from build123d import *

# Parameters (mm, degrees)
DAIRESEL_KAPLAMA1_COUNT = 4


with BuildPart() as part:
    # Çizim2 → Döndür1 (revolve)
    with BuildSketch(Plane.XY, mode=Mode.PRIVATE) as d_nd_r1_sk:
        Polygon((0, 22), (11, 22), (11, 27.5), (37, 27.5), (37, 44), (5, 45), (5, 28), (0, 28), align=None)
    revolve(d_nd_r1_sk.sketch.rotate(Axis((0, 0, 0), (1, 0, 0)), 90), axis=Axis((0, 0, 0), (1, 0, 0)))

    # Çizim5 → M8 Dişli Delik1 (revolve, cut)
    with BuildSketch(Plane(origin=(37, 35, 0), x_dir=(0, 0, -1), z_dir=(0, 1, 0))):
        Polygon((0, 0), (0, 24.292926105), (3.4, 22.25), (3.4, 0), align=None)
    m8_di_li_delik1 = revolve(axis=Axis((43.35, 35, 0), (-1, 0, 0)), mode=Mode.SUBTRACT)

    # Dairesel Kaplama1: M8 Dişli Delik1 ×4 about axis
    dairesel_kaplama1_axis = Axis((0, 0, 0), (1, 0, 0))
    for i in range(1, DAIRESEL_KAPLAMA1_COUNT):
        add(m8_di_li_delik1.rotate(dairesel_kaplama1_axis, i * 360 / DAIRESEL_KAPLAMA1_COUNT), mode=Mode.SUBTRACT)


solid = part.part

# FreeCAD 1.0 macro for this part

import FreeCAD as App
import Part
import Sketcher
from FreeCAD import Vector
Q = App.Units.Quantity

doc = App.newDocument("Part")
body = doc.addObject("PartDesign::Body", "Body")

# Sketch on XY plane
sketch1 = doc.addObject("Sketcher::SketchObject", "Sketch")
body.addObject(sketch1)
sketch1.AttachmentSupport = (doc.XY_Plane, [""])
sketch1.MapMode = "FlatFace"
sketch1.addGeometry(Part.LineSegment(Vector(0, 22, 0), Vector(11, 22, 0)), False)
sketch1.addGeometry(Part.LineSegment(Vector(11, 22, 0), Vector(11, 28, 0)), False)
sketch1.addGeometry(Part.LineSegment(Vector(11, 28, 0), Vector(37, 28, 0)), False)
sketch1.addGeometry(Part.LineSegment(Vector(37, 28, 0), Vector(37, 44, 0)), False)
sketch1.addGeometry(Part.LineSegment(Vector(37, 44, 0), Vector(5, 45, 0)), False)
sketch1.addGeometry(Part.LineSegment(Vector(5, 45, 0), Vector(5, 28, 0)), False)
sketch1.addGeometry(Part.LineSegment(Vector(5, 28, 0), Vector(0, 28, 0)), False)
sketch1.addGeometry(Part.LineSegment(Vector(0, 28, 0), Vector(0, 22, 0)), False)
sketch1.addConstraint(Sketcher.Constraint("Coincident", 0, 2, 1, 1))
sketch1.addConstraint(Sketcher.Constraint("Coincident", 1, 2, 2, 1))
sketch1.addConstraint(Sketcher.Constraint("Coincident", 2, 2, 3, 1))
sketch1.addConstraint(Sketcher.Constraint("Coincident", 3, 2, 4, 1))
sketch1.addConstraint(Sketcher.Constraint("Coincident", 4, 2, 5, 1))
sketch1.addConstraint(Sketcher.Constraint("Coincident", 5, 2, 6, 1))
sketch1.addConstraint(Sketcher.Constraint("Coincident", 6, 2, 7, 1))
sketch1.addConstraint(Sketcher.Constraint("Coincident", 7, 2, 0, 1))
sketch1.addConstraint(Sketcher.Constraint("Horizontal", 0))
sketch1.addConstraint(Sketcher.Constraint("Vertical", 1))
sketch1.addConstraint(Sketcher.Constraint("Horizontal", 2))
sketch1.addConstraint(Sketcher.Constraint("Vertical", 3))
sketch1.addConstraint(Sketcher.Constraint("Vertical", 5))
sketch1.addConstraint(Sketcher.Constraint("Horizontal", 6))
sketch1.addConstraint(Sketcher.Constraint("Vertical", 7))
sketch1.addConstraint(Sketcher.Constraint("PointOnObject", 6, 2, -2))
sketch1.addConstraint(Sketcher.Constraint("DistanceX", 0, 1, 0, 2, 11.0))
sketch1.addConstraint(Sketcher.Constraint("DistanceX", 2, 1, 2, 2, 26.0))
sketch1.addConstraint(Sketcher.Constraint("DistanceX", 6, 2, 6, 1, 5.0))
sketch1.addConstraint(Sketcher.Constraint("DistanceY", 5, 2, 5, 1, 17.0))
sketch1.addConstraint(Sketcher.Constraint("DistanceY", 7, 2, 7, 1, 6.0))
sketch1.addConstraint(Sketcher.Constraint("DistanceY", 1, 1, 1, 2, 5.5))
sketch1.addConstraint(Sketcher.Constraint("DistanceY", 3, 1, 3, 2, 16.5))
sketch1.addConstraint(Sketcher.Constraint("DistanceY", -1, 1, 0, 2, 22.0))
revolution = doc.addObject("PartDesign::Revolution", "Revolution")
body.addObject(revolution)
revolution.Profile = sketch1
revolution.ReferenceAxis = (sketch1, ["H_Axis"])
revolution.Angle = 360

# Sketch on XZ plane
sketch2 = doc.addObject("Sketcher::SketchObject", "Sketch001")
body.addObject(sketch2)
sketch2.AttachmentSupport = (doc.XZ_Plane, [""])
sketch2.MapMode = "FlatFace"
sketch2.AttachmentOffset = App.Placement(Vector(0, 0, -35), App.Rotation())
sketch2.addGeometry(Part.LineSegment(Vector(12.7, 0, 0), Vector(37, 0, 0)), False)
sketch2.addGeometry(Part.LineSegment(Vector(37, 0, 0), Vector(37, -3.4, 0)), False)
sketch2.addGeometry(Part.LineSegment(Vector(37, -3.4, 0), Vector(14.8, -3.4, 0)), False)
sketch2.addGeometry(Part.LineSegment(Vector(14.8, -3.4, 0), Vector(12.7, 0, 0)), False)
sketch2.addConstraint(Sketcher.Constraint("Coincident", 0, 2, 1, 1))
sketch2.addConstraint(Sketcher.Constraint("Coincident", 1, 2, 2, 1))
sketch2.addConstraint(Sketcher.Constraint("Coincident", 2, 2, 3, 1))
sketch2.addConstraint(Sketcher.Constraint("Coincident", 3, 2, 0, 1))
sketch2.addConstraint(Sketcher.Constraint("Horizontal", 0))
sketch2.addConstraint(Sketcher.Constraint("Vertical", 1))
sketch2.addConstraint(Sketcher.Constraint("Horizontal", 2))
sketch2.addConstraint(Sketcher.Constraint("PointOnObject", 0, 2, -1))
sketch2.addConstraint(Sketcher.Constraint("Angle", 3, Q("121 deg")))
sketch2.addConstraint(Sketcher.Constraint("DistanceY", 1, 2, 1, 1, 3.4))
sketch2.addConstraint(Sketcher.Constraint("DistanceX", -1, 1, 0, 2, 37.0))
sketch2.addConstraint(Sketcher.Constraint("DistanceX", 2, 2, 2, 1, 22.25))
groove = doc.addObject("PartDesign::Groove", "Groove")
body.addObject(groove)
groove.Profile = sketch2
groove.ReferenceAxis = (sketch2, ["H_Axis"])
groove.Angle = 360
doc.recompute()

polarpattern = doc.addObject("PartDesign::PolarPattern", "PolarPattern")
body.addObject(polarpattern)
polarpattern.Originals = [groove]
polarpattern.Axis = (doc.X_Axis, [""])
polarpattern.Angle = 360
polarpattern.Occurrences = 4
body.Tip = polarpattern

doc.recompute()
